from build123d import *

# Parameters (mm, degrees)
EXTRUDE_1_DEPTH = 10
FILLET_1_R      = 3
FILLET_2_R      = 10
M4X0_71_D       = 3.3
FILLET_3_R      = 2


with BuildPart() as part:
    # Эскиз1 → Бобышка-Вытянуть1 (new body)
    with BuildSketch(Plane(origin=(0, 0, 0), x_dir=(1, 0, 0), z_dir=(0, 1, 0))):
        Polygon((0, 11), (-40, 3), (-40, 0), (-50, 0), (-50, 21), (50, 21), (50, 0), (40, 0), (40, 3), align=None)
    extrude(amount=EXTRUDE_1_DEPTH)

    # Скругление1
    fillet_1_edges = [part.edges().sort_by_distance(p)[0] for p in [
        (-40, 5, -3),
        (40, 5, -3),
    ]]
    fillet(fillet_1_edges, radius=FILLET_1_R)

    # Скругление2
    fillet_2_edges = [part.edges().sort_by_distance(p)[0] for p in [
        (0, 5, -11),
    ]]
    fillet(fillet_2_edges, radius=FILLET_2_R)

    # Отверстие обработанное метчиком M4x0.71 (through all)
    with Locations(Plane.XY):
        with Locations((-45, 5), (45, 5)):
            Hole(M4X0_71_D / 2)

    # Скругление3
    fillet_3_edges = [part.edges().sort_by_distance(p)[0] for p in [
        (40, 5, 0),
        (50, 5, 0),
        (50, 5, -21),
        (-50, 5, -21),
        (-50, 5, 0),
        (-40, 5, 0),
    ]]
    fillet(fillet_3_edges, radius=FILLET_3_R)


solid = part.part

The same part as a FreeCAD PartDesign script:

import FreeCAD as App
import Part
import Sketcher
from FreeCAD import Vector


def edges_at(feature, points):
    """Names of the edges that pass closest to the given points."""
    edges = feature.Shape.Edges
    near = lambda p: min(range(len(edges)), key=lambda i: edges[i].distToShape(Part.Vertex(*p))[0])
    return sorted({f"Edge{near(p) + 1}" for p in points})


def add_polygon(sketch, points):
    """Adds a closed chain of lines whose ends are joined by coincident constraints."""
    first, n = sketch.GeometryCount, len(points)
    for a, b in zip(points, points[1:] + points[:1]):
        sketch.addGeometry(Part.LineSegment(App.Vector(*a, 0), App.Vector(*b, 0)), False)
    for i in range(n):
        sketch.addConstraint(Sketcher.Constraint("Coincident", first + i, 2, first + (i + 1) % n, 1))

doc = App.newDocument("Part")
body = doc.addObject("PartDesign::Body", "Body")

# Sketch on XZ plane
sketch1 = body.newObject("Sketcher::SketchObject", "Sketch")
sketch1.AttachmentSupport = (doc.getObject("XZ_Plane"), [""])
sketch1.MapMode = "FlatFace"
add_polygon(sketch1, [(-40, -3), (0, -11), (40, -3), (40, 0), (50, 0), (50, -21), (-50, -21), (-50, 0), (-40, 0)])  # lines 0-8
sketch1.addConstraint([
    Sketcher.Constraint("Vertical", 2),
    Sketcher.Constraint("Horizontal", 3),
    Sketcher.Constraint("Vertical", 4),
    Sketcher.Constraint("Horizontal", 5),
    Sketcher.Constraint("Vertical", 6),
    Sketcher.Constraint("Horizontal", 7),
    Sketcher.Constraint("Vertical", 8),
    Sketcher.Constraint("Symmetric", 3, 2, 6, 2, -1, 1),
    Sketcher.Constraint("Symmetric", 2, 2, 7, 2, -2),
    Sketcher.Constraint("PointOnObject", 0, 2, -2),
    Sketcher.Constraint("Horizontal", 1, 2, 8, 2),
    Sketcher.Constraint("DistanceX", 3, 1, 3, 2, 10.0),
    Sketcher.Constraint("DistanceX", 5, 2, 5, 1, 100.0),
    Sketcher.Constraint("DistanceY", 2, 1, 2, 2, 3.0),
    Sketcher.Constraint("DistanceY", 4, 2, 4, 1, 21.0),
    Sketcher.Constraint("DistanceY", 0, 2, -1, 1, 11.0),
])
pad1 = body.newObject("PartDesign::Pad", "Pad")
pad1.Profile = sketch1
pad1.Length = 10
pad1.Reversed = True
doc.recompute()

fillet = body.newObject("PartDesign::Fillet", "Fillet")
fillet.Base = (pad1, edges_at(pad1, [(-40, 5, -3), (40, 5, -3)]))
fillet.Radius = 3
doc.recompute()

fillet2 = body.newObject("PartDesign::Fillet", "Fillet001")
fillet2.Base = (fillet, edges_at(fillet, [(0, 5, -11)]))
fillet2.Radius = 10

# Sketch on XY plane
sketch2 = body.newObject("Sketcher::SketchObject", "Sketch001")
sketch2.AttachmentSupport = (doc.getObject("XY_Plane"), [""])
sketch2.MapMode = "FlatFace"
sketch2.addGeometry([
    Part.Circle(Vector(-45, 5, 0), Vector(0, 0, 1), 1.65),
    Part.Circle(Vector(45, 5, 0), Vector(0, 0, 1), 1.65),
], False)
sketch2.addConstraint([
    Sketcher.Constraint("Equal", 0, 1),
    Sketcher.Constraint("Symmetric", 0, 3, 1, 3, -2),
    Sketcher.Constraint("Diameter", 0, 3.3),
    Sketcher.Constraint("DistanceX", 0, 3, -1, 1, 45.0),
    Sketcher.Constraint("DistanceY", -1, 1, 0, 3, 5.0),
])
doc.recompute()
hole = body.newObject("PartDesign::Hole", "Hole")
hole.Profile = sketch2
hole.ThreadType = "None"
hole.Diameter = 3.3
hole.DepthType = "ThroughAll"
doc.recompute()

fillet3 = body.newObject("PartDesign::Fillet", "Fillet002")
fillet3.Base = (hole, edges_at(hole, [
    (40, 5, 0),
    (50, 5, 0),
    (50, 5, -21),
    (-50, 5, -21),
    (-50, 5, 0),
    (-40, 5, 0),
]))
fillet3.Radius = 2

doc.recompute()
